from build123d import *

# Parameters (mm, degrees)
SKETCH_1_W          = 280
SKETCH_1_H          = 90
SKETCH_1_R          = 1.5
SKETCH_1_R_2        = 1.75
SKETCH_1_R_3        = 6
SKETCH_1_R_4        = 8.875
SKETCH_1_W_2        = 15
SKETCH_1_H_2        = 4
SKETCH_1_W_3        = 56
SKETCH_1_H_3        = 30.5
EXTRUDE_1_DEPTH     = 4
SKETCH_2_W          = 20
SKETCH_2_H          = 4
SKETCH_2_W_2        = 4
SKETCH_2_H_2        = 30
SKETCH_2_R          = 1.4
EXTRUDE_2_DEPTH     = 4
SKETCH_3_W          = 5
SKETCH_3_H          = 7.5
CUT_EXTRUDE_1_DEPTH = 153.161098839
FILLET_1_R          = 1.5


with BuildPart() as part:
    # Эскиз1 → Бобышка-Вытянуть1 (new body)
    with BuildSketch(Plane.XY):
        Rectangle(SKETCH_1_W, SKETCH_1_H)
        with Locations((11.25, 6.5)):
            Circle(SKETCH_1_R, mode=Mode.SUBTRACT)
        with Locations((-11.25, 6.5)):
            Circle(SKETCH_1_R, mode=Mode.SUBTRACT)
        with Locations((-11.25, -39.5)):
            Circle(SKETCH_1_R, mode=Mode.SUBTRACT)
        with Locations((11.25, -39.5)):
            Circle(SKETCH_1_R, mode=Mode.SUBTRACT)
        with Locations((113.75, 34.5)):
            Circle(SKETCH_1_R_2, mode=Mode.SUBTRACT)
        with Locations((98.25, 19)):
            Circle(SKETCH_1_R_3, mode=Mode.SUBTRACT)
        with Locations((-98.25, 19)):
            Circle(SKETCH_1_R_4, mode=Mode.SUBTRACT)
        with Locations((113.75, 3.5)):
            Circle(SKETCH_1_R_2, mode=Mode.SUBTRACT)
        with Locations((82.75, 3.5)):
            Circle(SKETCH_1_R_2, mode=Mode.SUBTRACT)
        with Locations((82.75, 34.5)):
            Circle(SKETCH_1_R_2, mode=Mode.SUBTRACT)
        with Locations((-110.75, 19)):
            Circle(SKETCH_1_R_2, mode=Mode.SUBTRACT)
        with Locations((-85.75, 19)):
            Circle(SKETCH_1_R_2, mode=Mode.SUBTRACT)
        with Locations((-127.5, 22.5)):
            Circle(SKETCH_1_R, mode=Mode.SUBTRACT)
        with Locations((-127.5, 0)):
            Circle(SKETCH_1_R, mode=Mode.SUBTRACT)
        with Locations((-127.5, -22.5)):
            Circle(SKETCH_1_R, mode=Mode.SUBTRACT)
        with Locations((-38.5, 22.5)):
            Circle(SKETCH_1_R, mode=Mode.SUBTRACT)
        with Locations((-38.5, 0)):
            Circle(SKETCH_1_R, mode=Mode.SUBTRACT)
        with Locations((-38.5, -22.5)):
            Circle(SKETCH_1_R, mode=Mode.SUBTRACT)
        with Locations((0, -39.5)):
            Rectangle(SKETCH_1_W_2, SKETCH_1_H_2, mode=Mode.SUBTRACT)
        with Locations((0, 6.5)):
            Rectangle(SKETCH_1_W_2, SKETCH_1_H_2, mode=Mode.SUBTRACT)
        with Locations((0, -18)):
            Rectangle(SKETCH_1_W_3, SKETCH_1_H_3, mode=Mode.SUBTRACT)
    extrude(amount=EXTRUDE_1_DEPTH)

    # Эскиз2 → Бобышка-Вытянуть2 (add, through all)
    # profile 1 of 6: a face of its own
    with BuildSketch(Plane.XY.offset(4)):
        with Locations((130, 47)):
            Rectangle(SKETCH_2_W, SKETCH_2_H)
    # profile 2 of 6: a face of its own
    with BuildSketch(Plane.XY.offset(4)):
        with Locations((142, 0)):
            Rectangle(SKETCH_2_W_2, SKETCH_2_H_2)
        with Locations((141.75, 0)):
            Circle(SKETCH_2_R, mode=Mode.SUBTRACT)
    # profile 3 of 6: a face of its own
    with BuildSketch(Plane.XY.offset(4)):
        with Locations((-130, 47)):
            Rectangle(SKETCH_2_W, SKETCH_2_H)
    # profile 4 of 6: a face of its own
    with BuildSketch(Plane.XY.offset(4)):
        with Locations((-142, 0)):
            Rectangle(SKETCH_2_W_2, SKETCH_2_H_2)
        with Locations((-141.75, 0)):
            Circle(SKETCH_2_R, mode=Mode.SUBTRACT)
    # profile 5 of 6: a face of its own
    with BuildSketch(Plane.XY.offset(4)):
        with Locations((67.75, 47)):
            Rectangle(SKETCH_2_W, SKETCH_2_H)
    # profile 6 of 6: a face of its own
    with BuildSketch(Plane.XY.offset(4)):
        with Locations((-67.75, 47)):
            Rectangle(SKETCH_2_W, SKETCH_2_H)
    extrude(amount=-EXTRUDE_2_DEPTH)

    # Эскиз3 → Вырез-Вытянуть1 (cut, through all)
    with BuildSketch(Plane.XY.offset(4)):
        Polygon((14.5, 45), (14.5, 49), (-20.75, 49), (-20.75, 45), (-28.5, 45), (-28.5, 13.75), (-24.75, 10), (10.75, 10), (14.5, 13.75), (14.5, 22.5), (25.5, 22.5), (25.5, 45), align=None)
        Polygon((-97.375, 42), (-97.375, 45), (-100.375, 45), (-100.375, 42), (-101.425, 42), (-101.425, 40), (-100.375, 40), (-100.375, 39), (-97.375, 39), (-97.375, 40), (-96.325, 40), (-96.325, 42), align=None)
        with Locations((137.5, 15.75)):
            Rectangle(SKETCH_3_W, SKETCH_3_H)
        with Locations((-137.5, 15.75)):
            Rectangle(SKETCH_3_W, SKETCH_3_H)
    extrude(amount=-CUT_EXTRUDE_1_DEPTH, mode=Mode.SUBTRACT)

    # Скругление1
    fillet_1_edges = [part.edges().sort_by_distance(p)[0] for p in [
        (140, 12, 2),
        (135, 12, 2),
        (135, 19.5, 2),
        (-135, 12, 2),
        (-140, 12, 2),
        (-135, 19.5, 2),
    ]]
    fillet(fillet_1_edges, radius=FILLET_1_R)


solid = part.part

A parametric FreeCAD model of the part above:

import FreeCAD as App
import Part
import Sketcher

V = App.Vector


def edges_at(feature, points):
    """Names of the edges that pass closest to the given points."""
    edges = feature.Shape.Edges
    near = lambda p: min(range(len(edges)), key=lambda i: edges[i].distToShape(Part.Vertex(*p))[0])
    return sorted({f"Edge{near(p) + 1}" for p in points})


def add_polygon(sketch, points):
    """Adds a closed chain of lines whose ends are joined by coincident constraints."""
    first, n = sketch.GeometryCount, len(points)
    for a, b in zip(points, points[1:] + points[:1]):
        sketch.addGeometry(Part.LineSegment(App.Vector(*a, 0), App.Vector(*b, 0)), False)
    for i in range(n):
        sketch.addConstraint(Sketcher.Constraint("Coincident", first + i, 2, first + (i + 1) % n, 1))

doc = App.newDocument("Part")
body = doc.addObject("PartDesign::Body", "Body")

sketch1 = doc.addObject("Sketcher::SketchObject", "Sketch")
body.addObject(sketch1)
sketch1.AttachmentSupport = (doc.XY_Plane, [""])
sketch1.MapMode = "FlatFace"
add_polygon(sketch1, [(-140, 45), (-140, -45), (140, -45), (140, 45)])
sketch1.addGeometry(Part.Circle(V(-127.5, -22.5, 0), V(0, 0, 1), 1.5), False)
sketch1.addGeometry(Part.Circle(V(-11.2, -39.5, 0), V(0, 0, 1), 1.5), False)
sketch1.addGeometry(Part.Circle(V(-38.5, -22.5, 0), V(0, 0, 1), 1.5), False)
add_polygon(sketch1, [(7.5, -41.5), (-7.5, -41.5), (-7.5, -37.5), (7.5, -37.5)])
sketch1.addGeometry(Part.Circle(V(11.2, -39.5, 0), V(0, 0, 1), 1.5), False)
add_polygon(sketch1, [(28, -33.2), (-28, -33.2), (-28, -2.8), (28, -2.8)])
sketch1.addGeometry(Part.Circle(V(-127.5, 0, 0), V(0, 0, 1), 1.5), False)
sketch1.addGeometry(Part.Circle(V(-38.5, 0, 0), V(0, 0, 1), 1.5), False)
sketch1.addGeometry(Part.Circle(V(-11.2, 6.5, 0), V(0, 0, 1), 1.5), False)
sketch1.addGeometry(Part.Circle(V(-110.8, 19, 0), V(0, 0, 1), 1.8), False)
sketch1.addGeometry(Part.Circle(V(-127.5, 22.5, 0), V(0, 0, 1), 1.5), False)
sketch1.addGeometry(Part.Circle(V(-98.2, 19, 0), V(0, 0, 1), 8.9), False)
sketch1.addGeometry(Part.Circle(V(-85.8, 19, 0), V(0, 0, 1), 1.8), False)
sketch1.addGeometry(Part.Circle(V(-38.5, 22.5, 0), V(0, 0, 1), 1.5), False)
add_polygon(sketch1, [(7.5, 4.5), (-7.5, 4.5), (-7.5, 8.5), (7.5, 8.5)])
sketch1.addGeometry(Part.Circle(V(11.2, 6.5, 0), V(0, 0, 1), 1.5), False)
sketch1.addGeometry(Part.Circle(V(82.8, 3.5, 0), V(0, 0, 1), 1.8), False)
sketch1.addGeometry(Part.Circle(V(113.8, 3.5, 0), V(0, 0, 1), 1.8), False)
sketch1.addGeometry(Part.Circle(V(98.2, 19, 0), V(0, 0, 1), 6), False)
sketch1.addGeometry(Part.Circle(V(82.8, 34.5, 0), V(0, 0, 1), 1.8), False)
sketch1.addGeometry(Part.Circle(V(113.8, 34.5, 0), V(0, 0, 1), 1.8), False)
sketch1.addConstraint([
    Sketcher.Constraint("Vertical", 0),
    Sketcher.Constraint("Horizontal", 1),
    Sketcher.Constraint("Vertical", 2),
    Sketcher.Constraint("Horizontal", 3),
    Sketcher.Constraint("Horizontal", 7),
    Sketcher.Constraint("Vertical", 8),
    Sketcher.Constraint("Horizontal", 9),
    Sketcher.Constraint("Vertical", 10),
    Sketcher.Constraint("Horizontal", 12),
    Sketcher.Constraint("Vertical", 13),
    Sketcher.Constraint("Horizontal", 14),
    Sketcher.Constraint("Vertical", 15),
    Sketcher.Constraint("Horizontal", 24),
    Sketcher.Constraint("Vertical", 25),
    Sketcher.Constraint("Horizontal", 26),
    Sketcher.Constraint("Vertical", 27),
    Sketcher.Constraint("Equal", 4, 5),
    Sketcher.Constraint("Equal", 5, 6),
    Sketcher.Constraint("Equal", 6, 11),
    Sketcher.Constraint("Equal", 11, 16),
    Sketcher.Constraint("Equal", 16, 17),
    Sketcher.Constraint("Equal", 17, 18),
    Sketcher.Constraint("Equal", 18, 20),
    Sketcher.Constraint("Equal", 19, 22),
    Sketcher.Constraint("Equal", 20, 23),
    Sketcher.Constraint("Equal", 23, 28),
    Sketcher.Constraint("Equal", 22, 29),
    Sketcher.Constraint("Equal", 29, 30),
    Sketcher.Constraint("Equal", 30, 32),
    Sketcher.Constraint("Equal", 32, 33),
    Sketcher.Constraint("Symmetric", 0, 2, 2, 2, -1, 1),
    Sketcher.Constraint("Symmetric", 5, 3, 11, 3, -2),
    Sketcher.Constraint("Symmetric", 18, 3, 28, 3, -2),
    Sketcher.Constraint("Symmetric", 21, 3, 31, 3, -2),
    Sketcher.Constraint("Symmetric", 4, 3, 20, 3, -1),
    Sketcher.Constraint("Symmetric", 6, 3, 23, 3, -1),
    Sketcher.Constraint("PointOnObject", 16, 3, -1),
    Sketcher.Constraint("PointOnObject", 17, 3, -1),
    Sketcher.Constraint("Horizontal", 4, 3, 6, 3),
    Sketcher.Constraint("Horizontal", 19, 3, 21, 3),
    Sketcher.Constraint("Horizontal", 21, 3, 22, 3),
    Sketcher.Constraint("Horizontal", 29, 3, 30, 3),
    Sketcher.Constraint("Horizontal", 32, 3, 33, 3),
    Sketcher.Constraint("Vertical", 4, 3, 16, 3),
    Sketcher.Constraint("Vertical", 6, 3, 17, 3),
    Sketcher.Constraint("Vertical", 5, 3, 18, 3),
    Sketcher.Constraint("Vertical", 29, 3, 32, 3),
    Sketcher.Constraint("Vertical", 30, 3, 33, 3),
    Sketcher.Constraint("Vertical", 8, 2, 24, 2),
    Sketcher.Constraint("Vertical", 10, 2, 26, 2),
    Sketcher.Constraint("Equal", 10, 25),
    Sketcher.Constraint("Diameter", 4, 3.0),
    Sketcher.Constraint("Diameter", 31, 12.0),
    Sketcher.Constraint("Diameter", 19, 3.5),
    Sketcher.Constraint("Diameter", 21, 17.75),
    Sketcher.Constraint("DistanceX", 1, 1, 1, 2, 280.0),
    Sketcher.Constraint("DistanceX", 7, 2, 7, 1, 15.0),
    Sketcher.Constraint("DistanceX", 12, 2, 12, 1, 56.0),
    Sketcher.Constraint("DistanceY", 0, 2, 0, 1, 90.0),
    Sketcher.Constraint("DistanceY", 8, 1, 8, 2, 4.0),
    Sketcher.Constraint("DistanceY", 13, 1, 13, 2, 30.5),
    Sketcher.Constraint("DistanceY", -1, 1, 19, 3, 19.0),
    Sketcher.Constraint("DistanceX", 12, 2, -1, 1, 28.0),
    Sketcher.Constraint("DistanceY", 5, 3, 4, 3, 17.0),
    Sketcher.Constraint("DistanceX", 4, 3, 6, 3, 89.0),
    Sketcher.Constraint("DistanceY", 6, 3, 18, 3, 29.0),
    Sketcher.Constraint("DistanceY", 4, 3, 20, 3, 45.0),
    Sketcher.Constraint("DistanceX", 19, 3, 22, 3, 25.0),
    Sketcher.Constraint("DistanceY", 29, 3, 28, 3, 3.0),
    Sketcher.Constraint("DistanceX", 18, 3, 29, 3, 94.0),
    Sketcher.Constraint("DistanceX", 29, 3, 30, 3, 31.0),
    Sketcher.Constraint("DistanceX", 28, 3, 31, 3, 87.0),
    Sketcher.Constraint("DistanceY", 29, 3, 32, 3, 31.0),
    Sketcher.Constraint("DistanceY", 7, 2, 5, 3, 2.0),
    Sketcher.Constraint("DistanceX", 6, 3, 7, 2, 31.0),
    Sketcher.Constraint("DistanceY", 24, 2, 18, 3, 2.0),
    Sketcher.Constraint("DistanceX", 4, 3, -1, 1, 127.5),
    Sketcher.Constraint("DistanceX", 5, 3, 11, 3, 22.5),
    Sketcher.Constraint("DistanceX", 19, 3, 18, 3, 99.5),
    Sketcher.Constraint("DistanceY", 12, 2, -1, 1, 33.25),
])
pad1 = doc.addObject("PartDesign::Pad", "Pad")
body.addObject(pad1)
pad1.Profile = sketch1
pad1.Length = 4

sketch2 = doc.addObject("Sketcher::SketchObject", "Sketch001")
body.addObject(sketch2)
sketch2.AttachmentSupport = (doc.XY_Plane, [""])
sketch2.MapMode = "FlatFace"
sketch2.AttachmentOffset = App.Placement(V(0, 0, 4), App.Rotation())
add_polygon(sketch2, [(120, 49), (120, 45), (140, 45), (140, 49)])
add_polygon(sketch2, [(140, 15), (140, -15), (144, -15), (144, 15)])
sketch2.addGeometry(Part.Circle(V(141.8, 0, 0), V(0, 0, 1), 1.4), False)
add_polygon(sketch2, [(-140, 49), (-140, 45), (-120, 45), (-120, 49)])
add_polygon(sketch2, [(-144, 15), (-144, -15), (-140, -15), (-140, 15)])
sketch2.addGeometry(Part.Circle(V(-141.8, 0, 0), V(0, 0, 1), 1.4), False)
add_polygon(sketch2, [(57.8, 49), (57.8, 45), (77.8, 45), (77.8, 49)])
add_polygon(sketch2, [(-77.8, 49), (-77.8, 45), (-57.8, 45), (-57.8, 49)])
sketch2.addConstraint([
    Sketcher.Constraint("Vertical", 0),
    Sketcher.Constraint("Horizontal", 1),
    Sketcher.Constraint("Vertical", 2),
    Sketcher.Constraint("Horizontal", 3),
    Sketcher.Constraint("Vertical", 4),
    Sketcher.Constraint("Horizontal", 5),
    Sketcher.Constraint("Vertical", 6),
    Sketcher.Constraint("Horizontal", 7),
    Sketcher.Constraint("Vertical", 9),
    Sketcher.Constraint("Horizontal", 10),
    Sketcher.Constraint("Vertical", 11),
    Sketcher.Constraint("Horizontal", 12),
    Sketcher.Constraint("Vertical", 13),
    Sketcher.Constraint("Horizontal", 14),
    Sketcher.Constraint("Vertical", 15),
    Sketcher.Constraint("Horizontal", 16),
    Sketcher.Constraint("Vertical", 18),
    Sketcher.Constraint("Horizontal", 19),
    Sketcher.Constraint("Vertical", 20),
    Sketcher.Constraint("Horizontal", 21),
    Sketcher.Constraint("Vertical", 22),
    Sketcher.Constraint("Horizontal", 23),
    Sketcher.Constraint("Vertical", 24),
    Sketcher.Constraint("Horizontal", 25),
    Sketcher.Constraint("Equal", 8, 17),
    Sketcher.Constraint("Symmetric", 8, 3, 17, 3, -1, 1),
    Sketcher.Constraint("Symmetric", 6, 2, 13, 2, -1, 1),
    Sketcher.Constraint("Symmetric", 4, 2, 15, 2, -1, 1),
    Sketcher.Constraint("Symmetric", 1, 2, 9, 2, -2),
    Sketcher.Constraint("Symmetric", 3, 2, 11, 2, -2),
    Sketcher.Constraint("Symmetric", 19, 2, 22, 2, -2),
    Sketcher.Constraint("Symmetric", 21, 2, 24, 2, -2),
    Sketcher.Constraint("PointOnObject", 8, 3, -1),
    Sketcher.Constraint("Horizontal", 5, 2, 13, 2),
    Sketcher.Constraint("Horizontal", 10, 2, 18, 2),
    Sketcher.Constraint("Horizontal", 12, 2, 20, 2),
    Sketcher.Constraint("Vertical", 2, 2, 4, 2),
    Sketcher.Constraint("Equal", 12, 19),
    Sketcher.Constraint("Equal", 16, 0),
    Sketcher.Constraint("Diameter", 8, 2.8),
    Sketcher.Constraint("DistanceX", 1, 1, 1, 2, 20.0),
    Sketcher.Constraint("DistanceX", 5, 1, 5, 2, 4.0),
    Sketcher.Constraint("DistanceY", 4, 2, 4, 1, 30.0),
    Sketcher.Constraint("DistanceX", -1, 1, 0, 2, 120.0),
    Sketcher.Constraint("DistanceY", -1, 1, 0, 2, 45.0),
    Sketcher.Constraint("DistanceX", 17, 3, 8, 3, 283.5),
    Sketcher.Constraint("DistanceX", -1, 1, 18, 2, 57.75),
])
pad2 = doc.addObject("PartDesign::Pad", "Pad001")
body.addObject(pad2)
pad2.Profile = sketch2
pad2.Length = 4
pad2.Reversed = True

sketch3 = doc.addObject("Sketcher::SketchObject", "Sketch002")
body.addObject(sketch3)
sketch3.AttachmentSupport = (doc.XY_Plane, [""])
sketch3.MapMode = "FlatFace"
sketch3.AttachmentOffset = App.Placement(V(0, 0, 4), App.Rotation())
add_polygon(sketch3, [(14.5, 45), (14.5, 49), (-20.8, 49), (-20.8, 45), (-28.5, 45), (-28.5, 13.8), (-24.8, 10), (10.8, 10), (14.5, 13.8), (14.5, 22.5), (25.5, 22.5), (25.5, 45)])
add_polygon(sketch3, [(-97.4, 42), (-97.4, 45), (-100.4, 45), (-100.4, 42), (-101.4, 42), (-101.4, 40), (-100.4, 40), (-100.4, 39), (-97.4, 39), (-97.4, 40), (-96.3, 40), (-96.3, 42)])
add_polygon(sketch3, [(135, 19.5), (135, 12), (140, 12), (140, 19.5)])
add_polygon(sketch3, [(-140, 19.5), (-140, 12), (-135, 12), (-135, 19.5)])
sketch3.addConstraint([
    Sketcher.Constraint("Vertical", 0),
    Sketcher.Constraint("Horizontal", 1),
    Sketcher.Constraint("Vertical", 2),
    Sketcher.Constraint("Horizontal", 3),
    Sketcher.Constraint("Vertical", 4),
    Sketcher.Constraint("Horizontal", 6),
    Sketcher.Constraint("Vertical", 8),
    Sketcher.Constraint("Horizontal", 9),
    Sketcher.Constraint("Vertical", 10),
    Sketcher.Constraint("Horizontal", 11),
    Sketcher.Constraint("Vertical", 12),
    Sketcher.Constraint("Horizontal", 13),
    Sketcher.Constraint("Vertical", 14),
    Sketcher.Constraint("Horizontal", 15),
    Sketcher.Constraint("Vertical", 16),
    Sketcher.Constraint("Horizontal", 17),
    Sketcher.Constraint("Vertical", 18),
    Sketcher.Constraint("Horizontal", 19),
    Sketcher.Constraint("Vertical", 20),
    Sketcher.Constraint("Horizontal", 21),
    Sketcher.Constraint("Vertical", 22),
    Sketcher.Constraint("Horizontal", 23),
    Sketcher.Constraint("Vertical", 24),
    Sketcher.Constraint("Horizontal", 25),
    Sketcher.Constraint("Vertical", 26),
    Sketcher.Constraint("Horizontal", 27),
    Sketcher.Constraint("Vertical", 28),
    Sketcher.Constraint("Horizontal", 29),
    Sketcher.Constraint("Vertical", 30),
    Sketcher.Constraint("Horizontal", 31),
    Sketcher.Constraint("Symmetric", 25, 2, 28, 2, -2),
    Sketcher.Constraint("Symmetric", 27, 2, 30, 2, -2),
    Sketcher.Constraint("Perpendicular", 5, 7),
    Sketcher.Constraint("Horizontal", 4, 2, 7, 2),
    Sketcher.Constraint("Horizontal", 3, 2, 10, 2),
    Sketcher.Constraint("Horizontal", 11, 2, 12, 2),
    Sketcher.Constraint("Horizontal", 17, 2, 20, 2),
    Sketcher.Constraint("Horizontal", 15, 2, 22, 2),
    Sketcher.Constraint("Vertical", 0, 2, 7, 2),
    Sketcher.Constraint("Vertical", 14, 2, 17, 2),
    Sketcher.Constraint("Vertical", 12, 2, 19, 2),
    Sketcher.Constraint("Equal", 17, 21),
    Sketcher.Constraint("Equal", 19, 12),
    Sketcher.Constraint("Equal", 5, 7),
    Sketcher.Constraint("DistanceX", 9, 1, 9, 2, 11.0),
    Sketcher.Constraint("DistanceX", 13, 2, 13, 1, 3.0),
    Sketcher.Constraint("DistanceX", 25, 1, 25, 2, 5.0),
    Sketcher.Constraint("DistanceY", 0, 1, 0, 2, 4.0),
    Sketcher.Constraint("DistanceY", 16, 2, 16, 1, 2.0),
    Sketcher.Constraint("DistanceY", 18, 2, 18, 1, 1.0),
    Sketcher.Constraint("DistanceX", 6, 1, 6, 2, 35.5),
    Sketcher.Constraint("DistanceY", 10, 1, 10, 2, 22.5),
    Sketcher.Constraint("DistanceY", 24, 2, 24, 1, 7.5),
    Sketcher.Constraint("DistanceY", -1, 1, 0, 2, 49.0),
    Sketcher.Constraint("DistanceY", -1, 1, 5, 2, 10.0),
    Sketcher.Constraint("DistanceX", -1, 1, 24, 2, 135.0),
    Sketcher.Constraint("DistanceY", -1, 1, 24, 2, 12.0),
    Sketcher.Constraint("DistanceX", 3, 2, 0, 2, 43.0),
    Sketcher.Constraint("DistanceX", 5, 2, 2, 2, 4.0),
    Sketcher.Constraint("DistanceX", 15, 2, 15, 1, 1.05),
    Sketcher.Constraint("DistanceX", -1, 1, 0, 2, 14.5),
    Sketcher.Constraint("DistanceX", 12, 2, -1, 1, 97.375),
])
pocket1 = doc.addObject("PartDesign::Pocket", "Pocket")
body.addObject(pocket1)
pocket1.Profile = sketch3
pocket1.Type = "ThroughAll"
doc.recompute()

fillet = doc.addObject("PartDesign::Fillet", "Fillet")
body.addObject(fillet)
fillet.Base = (pocket1, edges_at(pocket1, [
    (140, 12, 2),
    (135, 12, 2),
    (135, 19.5, 2),
    (-135, 12, 2),
    (-140, 12, 2),
    (-135, 19.5, 2),
]))
fillet.Radius = 1.5

doc.recompute()
